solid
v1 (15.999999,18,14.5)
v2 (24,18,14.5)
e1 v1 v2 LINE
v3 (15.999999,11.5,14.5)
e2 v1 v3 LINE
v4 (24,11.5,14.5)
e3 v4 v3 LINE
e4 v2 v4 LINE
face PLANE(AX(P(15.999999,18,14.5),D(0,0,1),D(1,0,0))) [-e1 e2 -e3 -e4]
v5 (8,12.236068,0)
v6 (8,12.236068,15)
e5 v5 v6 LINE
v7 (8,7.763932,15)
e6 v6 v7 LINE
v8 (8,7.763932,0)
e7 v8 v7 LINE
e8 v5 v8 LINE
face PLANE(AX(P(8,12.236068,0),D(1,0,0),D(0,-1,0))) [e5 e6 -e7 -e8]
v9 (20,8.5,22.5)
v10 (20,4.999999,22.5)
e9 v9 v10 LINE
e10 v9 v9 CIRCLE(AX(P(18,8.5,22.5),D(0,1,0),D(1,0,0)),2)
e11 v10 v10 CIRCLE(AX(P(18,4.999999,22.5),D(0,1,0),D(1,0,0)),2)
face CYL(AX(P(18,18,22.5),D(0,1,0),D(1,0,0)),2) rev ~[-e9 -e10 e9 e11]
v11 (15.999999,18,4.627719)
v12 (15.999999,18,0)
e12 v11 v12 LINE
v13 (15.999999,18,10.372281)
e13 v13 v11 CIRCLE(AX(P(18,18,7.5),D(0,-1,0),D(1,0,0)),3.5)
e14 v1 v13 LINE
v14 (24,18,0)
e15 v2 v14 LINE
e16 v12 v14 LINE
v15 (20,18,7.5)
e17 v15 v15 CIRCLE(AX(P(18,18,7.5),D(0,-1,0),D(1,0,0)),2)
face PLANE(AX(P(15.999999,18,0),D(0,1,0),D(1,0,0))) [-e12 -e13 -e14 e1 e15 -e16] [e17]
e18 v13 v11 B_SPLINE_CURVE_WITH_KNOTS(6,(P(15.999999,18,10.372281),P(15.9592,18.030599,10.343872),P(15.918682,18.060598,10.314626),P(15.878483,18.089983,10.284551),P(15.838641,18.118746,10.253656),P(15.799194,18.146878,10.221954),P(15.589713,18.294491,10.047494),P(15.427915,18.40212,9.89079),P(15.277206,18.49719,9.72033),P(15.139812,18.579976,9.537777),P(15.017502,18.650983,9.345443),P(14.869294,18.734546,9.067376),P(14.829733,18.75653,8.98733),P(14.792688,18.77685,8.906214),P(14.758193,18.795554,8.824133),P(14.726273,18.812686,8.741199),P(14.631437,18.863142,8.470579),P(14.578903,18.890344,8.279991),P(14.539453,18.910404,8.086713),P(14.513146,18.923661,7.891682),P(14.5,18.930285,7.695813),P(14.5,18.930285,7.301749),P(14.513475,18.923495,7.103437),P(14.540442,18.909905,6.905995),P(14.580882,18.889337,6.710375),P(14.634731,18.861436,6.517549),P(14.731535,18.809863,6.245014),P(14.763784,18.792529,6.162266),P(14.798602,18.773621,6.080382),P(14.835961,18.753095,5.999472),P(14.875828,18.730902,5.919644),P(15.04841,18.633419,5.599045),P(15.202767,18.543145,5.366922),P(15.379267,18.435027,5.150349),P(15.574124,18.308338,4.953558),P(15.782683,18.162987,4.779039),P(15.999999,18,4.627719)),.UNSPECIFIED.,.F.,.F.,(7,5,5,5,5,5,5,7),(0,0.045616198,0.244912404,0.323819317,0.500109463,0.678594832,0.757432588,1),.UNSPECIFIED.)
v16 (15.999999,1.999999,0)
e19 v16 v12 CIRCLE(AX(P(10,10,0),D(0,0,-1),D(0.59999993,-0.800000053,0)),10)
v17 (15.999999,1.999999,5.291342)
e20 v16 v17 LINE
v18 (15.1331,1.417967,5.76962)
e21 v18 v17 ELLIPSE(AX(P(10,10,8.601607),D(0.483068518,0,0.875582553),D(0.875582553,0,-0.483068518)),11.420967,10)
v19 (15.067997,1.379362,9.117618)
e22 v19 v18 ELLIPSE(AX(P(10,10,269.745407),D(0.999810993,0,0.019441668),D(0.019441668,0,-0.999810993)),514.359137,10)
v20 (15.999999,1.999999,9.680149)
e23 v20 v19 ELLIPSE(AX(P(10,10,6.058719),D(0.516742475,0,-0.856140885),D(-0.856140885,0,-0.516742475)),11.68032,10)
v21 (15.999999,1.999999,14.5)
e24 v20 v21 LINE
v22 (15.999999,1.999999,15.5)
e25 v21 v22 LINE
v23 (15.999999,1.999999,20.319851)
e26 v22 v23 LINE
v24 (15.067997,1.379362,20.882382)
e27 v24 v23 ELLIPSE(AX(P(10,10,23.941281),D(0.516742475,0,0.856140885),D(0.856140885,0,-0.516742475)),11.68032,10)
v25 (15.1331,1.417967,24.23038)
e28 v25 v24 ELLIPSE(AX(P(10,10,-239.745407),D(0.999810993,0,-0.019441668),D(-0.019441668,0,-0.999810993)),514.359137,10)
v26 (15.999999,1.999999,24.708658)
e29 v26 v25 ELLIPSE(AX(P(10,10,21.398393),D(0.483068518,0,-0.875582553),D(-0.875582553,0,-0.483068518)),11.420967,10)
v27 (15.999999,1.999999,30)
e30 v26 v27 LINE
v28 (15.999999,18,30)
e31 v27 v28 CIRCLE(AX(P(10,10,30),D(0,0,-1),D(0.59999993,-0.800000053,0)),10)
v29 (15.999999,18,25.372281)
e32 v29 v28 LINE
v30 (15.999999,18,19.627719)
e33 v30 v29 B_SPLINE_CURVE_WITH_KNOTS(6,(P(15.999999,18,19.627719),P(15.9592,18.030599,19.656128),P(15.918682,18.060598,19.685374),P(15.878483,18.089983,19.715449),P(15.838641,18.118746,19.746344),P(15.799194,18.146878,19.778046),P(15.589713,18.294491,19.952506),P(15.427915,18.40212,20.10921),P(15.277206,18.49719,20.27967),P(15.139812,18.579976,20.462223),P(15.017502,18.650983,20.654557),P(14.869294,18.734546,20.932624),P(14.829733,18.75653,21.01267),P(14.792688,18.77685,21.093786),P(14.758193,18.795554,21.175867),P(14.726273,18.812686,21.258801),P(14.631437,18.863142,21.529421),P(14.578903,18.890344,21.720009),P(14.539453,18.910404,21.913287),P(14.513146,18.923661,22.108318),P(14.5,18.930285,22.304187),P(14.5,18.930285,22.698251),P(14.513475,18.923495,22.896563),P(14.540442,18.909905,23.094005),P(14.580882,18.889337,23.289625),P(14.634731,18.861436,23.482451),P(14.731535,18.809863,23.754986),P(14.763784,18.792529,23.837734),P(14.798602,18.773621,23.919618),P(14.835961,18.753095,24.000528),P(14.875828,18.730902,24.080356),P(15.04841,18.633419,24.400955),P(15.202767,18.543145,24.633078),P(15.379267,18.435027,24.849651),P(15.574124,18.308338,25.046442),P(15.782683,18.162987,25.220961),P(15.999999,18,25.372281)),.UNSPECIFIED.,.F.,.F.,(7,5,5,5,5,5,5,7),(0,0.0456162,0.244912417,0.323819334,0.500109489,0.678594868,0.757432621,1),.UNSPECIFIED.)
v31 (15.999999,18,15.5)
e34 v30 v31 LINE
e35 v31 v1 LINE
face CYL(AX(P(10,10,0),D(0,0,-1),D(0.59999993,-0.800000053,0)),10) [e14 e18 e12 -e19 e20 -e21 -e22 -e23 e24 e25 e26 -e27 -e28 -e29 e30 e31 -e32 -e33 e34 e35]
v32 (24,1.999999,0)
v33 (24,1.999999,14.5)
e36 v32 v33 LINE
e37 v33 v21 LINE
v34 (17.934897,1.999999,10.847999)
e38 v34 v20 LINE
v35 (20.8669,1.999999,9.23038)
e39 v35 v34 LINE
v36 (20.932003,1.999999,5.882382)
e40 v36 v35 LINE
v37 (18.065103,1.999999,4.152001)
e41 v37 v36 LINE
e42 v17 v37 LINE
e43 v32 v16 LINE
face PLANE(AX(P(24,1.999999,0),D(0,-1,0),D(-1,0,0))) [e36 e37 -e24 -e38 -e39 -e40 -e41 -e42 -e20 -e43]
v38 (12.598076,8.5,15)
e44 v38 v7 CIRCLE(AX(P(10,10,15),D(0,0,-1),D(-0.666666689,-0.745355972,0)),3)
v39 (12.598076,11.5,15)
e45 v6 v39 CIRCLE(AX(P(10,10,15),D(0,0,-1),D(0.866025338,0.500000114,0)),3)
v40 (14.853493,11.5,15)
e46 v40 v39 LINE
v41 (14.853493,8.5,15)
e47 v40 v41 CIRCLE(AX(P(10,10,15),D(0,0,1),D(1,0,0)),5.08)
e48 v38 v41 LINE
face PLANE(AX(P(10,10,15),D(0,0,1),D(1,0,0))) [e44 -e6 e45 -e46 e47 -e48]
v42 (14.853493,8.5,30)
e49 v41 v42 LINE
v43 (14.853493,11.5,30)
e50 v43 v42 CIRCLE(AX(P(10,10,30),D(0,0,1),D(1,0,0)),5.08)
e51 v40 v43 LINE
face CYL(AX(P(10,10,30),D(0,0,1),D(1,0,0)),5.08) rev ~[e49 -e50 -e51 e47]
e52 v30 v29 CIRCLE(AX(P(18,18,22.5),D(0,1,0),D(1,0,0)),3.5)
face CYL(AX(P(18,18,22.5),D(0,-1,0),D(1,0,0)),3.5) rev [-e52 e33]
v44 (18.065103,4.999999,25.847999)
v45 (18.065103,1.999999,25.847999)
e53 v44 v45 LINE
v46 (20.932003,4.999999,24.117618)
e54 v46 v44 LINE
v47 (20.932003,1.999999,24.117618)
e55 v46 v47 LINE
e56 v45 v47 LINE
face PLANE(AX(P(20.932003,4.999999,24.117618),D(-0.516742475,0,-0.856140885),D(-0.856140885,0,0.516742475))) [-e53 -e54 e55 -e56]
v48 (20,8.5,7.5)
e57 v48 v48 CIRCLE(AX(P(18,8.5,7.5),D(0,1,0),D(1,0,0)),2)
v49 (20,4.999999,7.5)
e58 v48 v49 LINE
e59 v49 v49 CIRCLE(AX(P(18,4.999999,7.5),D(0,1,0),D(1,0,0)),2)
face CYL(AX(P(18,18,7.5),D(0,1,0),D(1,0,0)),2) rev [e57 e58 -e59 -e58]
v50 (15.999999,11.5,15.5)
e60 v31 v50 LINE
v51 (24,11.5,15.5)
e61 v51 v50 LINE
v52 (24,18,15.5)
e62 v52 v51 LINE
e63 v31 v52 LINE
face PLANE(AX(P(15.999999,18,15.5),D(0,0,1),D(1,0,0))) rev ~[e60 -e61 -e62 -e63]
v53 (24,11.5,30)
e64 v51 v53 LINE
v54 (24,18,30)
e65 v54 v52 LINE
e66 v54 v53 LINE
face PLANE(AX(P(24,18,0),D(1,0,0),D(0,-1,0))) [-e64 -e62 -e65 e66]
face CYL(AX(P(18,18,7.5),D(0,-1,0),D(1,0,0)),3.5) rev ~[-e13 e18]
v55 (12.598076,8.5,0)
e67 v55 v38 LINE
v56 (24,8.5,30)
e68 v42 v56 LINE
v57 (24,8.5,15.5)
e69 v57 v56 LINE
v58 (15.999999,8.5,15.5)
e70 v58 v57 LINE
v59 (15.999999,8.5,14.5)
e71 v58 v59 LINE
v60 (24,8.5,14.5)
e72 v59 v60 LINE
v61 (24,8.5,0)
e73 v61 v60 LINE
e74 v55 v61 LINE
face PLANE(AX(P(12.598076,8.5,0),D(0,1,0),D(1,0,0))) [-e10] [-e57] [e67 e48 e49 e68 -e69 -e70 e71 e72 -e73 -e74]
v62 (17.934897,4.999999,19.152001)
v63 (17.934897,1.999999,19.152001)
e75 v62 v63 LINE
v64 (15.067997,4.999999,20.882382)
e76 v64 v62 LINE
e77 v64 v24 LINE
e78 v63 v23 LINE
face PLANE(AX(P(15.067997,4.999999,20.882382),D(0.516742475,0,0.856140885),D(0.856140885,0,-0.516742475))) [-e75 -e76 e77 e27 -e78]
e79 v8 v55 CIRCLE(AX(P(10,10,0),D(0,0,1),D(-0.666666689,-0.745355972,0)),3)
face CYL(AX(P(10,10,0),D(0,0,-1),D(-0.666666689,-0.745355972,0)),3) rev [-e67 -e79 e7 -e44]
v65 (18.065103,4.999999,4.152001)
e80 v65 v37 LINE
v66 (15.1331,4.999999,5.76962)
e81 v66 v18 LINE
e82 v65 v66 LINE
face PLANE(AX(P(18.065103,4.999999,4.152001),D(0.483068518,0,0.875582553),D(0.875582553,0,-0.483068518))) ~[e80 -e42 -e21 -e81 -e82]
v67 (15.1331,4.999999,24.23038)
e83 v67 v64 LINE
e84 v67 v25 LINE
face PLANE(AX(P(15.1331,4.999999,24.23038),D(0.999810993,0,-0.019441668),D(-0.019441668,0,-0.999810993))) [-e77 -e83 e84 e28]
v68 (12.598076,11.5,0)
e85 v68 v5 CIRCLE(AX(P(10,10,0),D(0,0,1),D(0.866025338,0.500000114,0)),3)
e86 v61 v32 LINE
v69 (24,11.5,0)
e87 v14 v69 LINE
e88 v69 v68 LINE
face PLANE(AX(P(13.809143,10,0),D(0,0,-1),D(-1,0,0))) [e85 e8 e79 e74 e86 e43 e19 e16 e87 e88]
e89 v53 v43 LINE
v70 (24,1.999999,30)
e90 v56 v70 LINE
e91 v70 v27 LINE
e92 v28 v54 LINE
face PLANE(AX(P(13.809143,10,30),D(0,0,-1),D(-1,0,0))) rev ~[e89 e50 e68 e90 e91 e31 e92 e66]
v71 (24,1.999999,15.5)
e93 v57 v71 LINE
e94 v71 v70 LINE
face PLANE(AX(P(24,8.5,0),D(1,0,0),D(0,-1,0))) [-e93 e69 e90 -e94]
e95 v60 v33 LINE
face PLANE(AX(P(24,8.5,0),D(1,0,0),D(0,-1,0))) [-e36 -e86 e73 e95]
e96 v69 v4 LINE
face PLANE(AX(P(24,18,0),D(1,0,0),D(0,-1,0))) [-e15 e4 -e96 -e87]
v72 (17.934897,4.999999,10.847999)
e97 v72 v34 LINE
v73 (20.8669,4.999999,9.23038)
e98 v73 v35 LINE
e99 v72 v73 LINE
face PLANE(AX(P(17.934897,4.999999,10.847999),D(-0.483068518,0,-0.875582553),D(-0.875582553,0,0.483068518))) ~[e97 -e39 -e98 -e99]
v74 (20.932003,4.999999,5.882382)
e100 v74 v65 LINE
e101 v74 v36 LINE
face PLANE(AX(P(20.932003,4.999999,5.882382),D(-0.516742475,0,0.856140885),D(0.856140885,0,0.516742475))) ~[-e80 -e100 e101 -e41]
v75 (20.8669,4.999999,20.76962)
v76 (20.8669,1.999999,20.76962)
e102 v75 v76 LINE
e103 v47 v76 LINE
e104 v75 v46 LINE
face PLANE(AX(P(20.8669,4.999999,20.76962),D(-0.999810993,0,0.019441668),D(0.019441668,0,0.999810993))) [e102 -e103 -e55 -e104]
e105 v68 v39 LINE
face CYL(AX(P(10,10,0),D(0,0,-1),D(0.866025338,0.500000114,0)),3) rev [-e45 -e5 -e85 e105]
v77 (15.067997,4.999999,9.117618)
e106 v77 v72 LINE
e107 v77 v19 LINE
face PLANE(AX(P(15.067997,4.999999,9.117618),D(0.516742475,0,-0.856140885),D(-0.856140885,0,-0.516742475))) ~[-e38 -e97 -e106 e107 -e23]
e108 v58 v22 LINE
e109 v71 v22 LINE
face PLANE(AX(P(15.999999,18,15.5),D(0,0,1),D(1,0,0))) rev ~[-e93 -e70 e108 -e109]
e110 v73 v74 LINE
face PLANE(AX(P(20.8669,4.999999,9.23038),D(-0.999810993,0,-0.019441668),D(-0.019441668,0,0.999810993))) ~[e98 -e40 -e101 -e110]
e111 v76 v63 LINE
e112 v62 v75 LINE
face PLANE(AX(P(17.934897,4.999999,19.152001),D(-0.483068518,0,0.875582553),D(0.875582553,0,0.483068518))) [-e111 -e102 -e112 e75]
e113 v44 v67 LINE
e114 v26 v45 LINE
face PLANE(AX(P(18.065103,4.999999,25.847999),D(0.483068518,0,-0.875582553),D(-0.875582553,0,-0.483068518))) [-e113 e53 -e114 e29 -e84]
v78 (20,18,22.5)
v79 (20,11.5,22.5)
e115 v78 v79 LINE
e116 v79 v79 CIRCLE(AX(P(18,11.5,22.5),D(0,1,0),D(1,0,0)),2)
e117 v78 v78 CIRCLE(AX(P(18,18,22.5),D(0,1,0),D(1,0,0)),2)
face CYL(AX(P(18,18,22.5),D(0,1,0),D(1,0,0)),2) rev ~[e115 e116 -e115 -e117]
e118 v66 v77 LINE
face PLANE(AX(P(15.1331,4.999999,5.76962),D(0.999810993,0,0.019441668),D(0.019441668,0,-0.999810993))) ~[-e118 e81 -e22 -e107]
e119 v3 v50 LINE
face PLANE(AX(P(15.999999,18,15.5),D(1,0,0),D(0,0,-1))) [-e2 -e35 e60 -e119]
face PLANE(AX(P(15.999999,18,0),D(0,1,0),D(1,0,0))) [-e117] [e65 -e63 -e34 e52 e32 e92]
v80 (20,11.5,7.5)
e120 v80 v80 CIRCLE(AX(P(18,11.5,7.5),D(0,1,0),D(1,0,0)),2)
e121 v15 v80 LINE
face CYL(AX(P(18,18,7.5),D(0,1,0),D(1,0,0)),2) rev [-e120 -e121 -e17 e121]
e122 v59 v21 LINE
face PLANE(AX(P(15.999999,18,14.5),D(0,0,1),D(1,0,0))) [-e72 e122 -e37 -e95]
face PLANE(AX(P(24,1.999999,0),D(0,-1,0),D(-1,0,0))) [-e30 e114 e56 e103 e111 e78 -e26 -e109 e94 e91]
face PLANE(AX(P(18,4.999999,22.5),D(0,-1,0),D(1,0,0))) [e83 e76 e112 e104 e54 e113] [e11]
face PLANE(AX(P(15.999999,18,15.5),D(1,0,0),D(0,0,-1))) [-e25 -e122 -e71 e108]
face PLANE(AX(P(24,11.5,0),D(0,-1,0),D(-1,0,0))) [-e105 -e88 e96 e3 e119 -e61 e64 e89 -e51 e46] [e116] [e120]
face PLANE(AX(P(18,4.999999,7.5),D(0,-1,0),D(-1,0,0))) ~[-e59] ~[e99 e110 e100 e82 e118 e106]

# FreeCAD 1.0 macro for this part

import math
import FreeCAD as App
import Part
import Sketcher
Q = App.Units.Quantity

doc = App.newDocument("Part")
params = doc.addObject("Spreadsheet::Sheet", "Params")
for row, (alias, value) in enumerate([
    ("sketch1_radius", "3 mm"),
    ("sketch1_radius2", "10 mm"),
    ("sketch1_width", "8.000001 mm"),
    ("sketch1_height", "6.5 mm"),
    ("pad1_length", "30 mm"),
    ("sketch2_diameter", "4 mm"),
    ("sketch3_diameter", "7 mm"),
    ("pocket2_length", "10 mm"),
    ("sketch4_width", "8.000001 mm"),
    ("sketch4_height", "1 mm"),
    ("pocket4_length", "6 mm"),
    ("sketch6_diameter", "10.16 mm"),
    ("pocket5_length", "15 mm"),
], start=1):
    params.set(f"A{row}", alias)
    params.set(f"B{row}", "=" + value)
    params.setAlias(f"B{row}", alias)

body = doc.addObject("PartDesign::Body", "Body")

# Sketch on XY plane
sketch1 = doc.addObject("Sketcher::SketchObject", "Sketch")
body.addObject(sketch1)
sketch1.AttachmentSupport = (doc.XY_Plane, [""])
sketch1.MapMode = "FlatFace"
sketch1.addGeometry([
    Part.LineSegment(App.Vector(8, 7.8, 0), App.Vector(8, 12.2, 0)),  # 0
    Part.ArcOfCircle(Part.Circle(App.Vector(10, 10, 0), App.Vector(0, 0, 1), 3), math.radians(30), math.radians(132)),  # 1
    Part.LineSegment(App.Vector(12.6, 11.5, 0), App.Vector(24, 11.5, 0)),  # 2
    Part.LineSegment(App.Vector(24, 11.5, 0), App.Vector(24, 18, 0)),  # 3
    Part.LineSegment(App.Vector(24, 18, 0), App.Vector(16, 18, 0)),  # 4
    Part.ArcOfCircle(Part.Circle(App.Vector(10, 10, 0), App.Vector(0, 0, 1), 10), math.radians(53), math.radians(307)),  # 5
    Part.LineSegment(App.Vector(16, 2, 0), App.Vector(24, 2, 0)),  # 6
    Part.LineSegment(App.Vector(24, 2, 0), App.Vector(24, 8.5, 0)),  # 7
    Part.LineSegment(App.Vector(24, 8.5, 0), App.Vector(12.6, 8.5, 0)),  # 8
    Part.ArcOfCircle(Part.Circle(App.Vector(10, 10, 0), App.Vector(0, 0, 1), 3), math.radians(-132), math.radians(-30)),  # 9
], False)
sketch1.addConstraint([
    Sketcher.Constraint("Coincident", 0, 2, 1, 2),
    Sketcher.Constraint("Coincident", 1, 1, 2, 1),
    Sketcher.Constraint("Coincident", 2, 2, 3, 1),
    Sketcher.Constraint("Coincident", 3, 2, 4, 1),
    Sketcher.Constraint("Coincident", 4, 2, 5, 1),
    Sketcher.Constraint("Coincident", 5, 2, 6, 1),
    Sketcher.Constraint("Coincident", 6, 2, 7, 1),
    Sketcher.Constraint("Coincident", 7, 2, 8, 1),
    Sketcher.Constraint("Coincident", 8, 2, 9, 2),
    Sketcher.Constraint("Coincident", 9, 1, 0, 1),
    Sketcher.Constraint("Vertical", 0),
    Sketcher.Constraint("Horizontal", 2),
    Sketcher.Constraint("Vertical", 3),
    Sketcher.Constraint("Horizontal", 4),
    Sketcher.Constraint("Horizontal", 6),
    Sketcher.Constraint("Vertical", 7),
    Sketcher.Constraint("Horizontal", 8),
    Sketcher.Constraint("Coincident", 5, 3, 1, 3),
    Sketcher.Constraint("Coincident", 9, 3, 1, 3),
    Sketcher.Constraint("Equal", 1, 9),
    Sketcher.Constraint("Vertical", 4, 2, 5, 2),
    Sketcher.Constraint("Vertical", 3, 2, 6, 2),
    Sketcher.Constraint("Vertical", 1, 1, 8, 2),
    Sketcher.Constraint("Radius", 1, Q("3 mm")),
    Sketcher.Constraint("Radius", 5, Q("10 mm")),
    Sketcher.Constraint("DistanceX", 4, 2, 4, 1, Q("8.000001 mm")),
    Sketcher.Constraint("DistanceY", 3, 1, 3, 2, Q("6.5 mm")),
    Sketcher.Constraint("DistanceX", -1, 1, 1, 3, Q("10 mm")),
    Sketcher.Constraint("DistanceY", -1, 1, 1, 3, Q("10 mm")),
    Sketcher.Constraint("DistanceX", -1, 1, 0, 2, Q("8 mm")),
    Sketcher.Constraint("DistanceX", -1, 1, 2, 2, Q("24 mm")),
])
sketch1.setExpression("Constraints[23]", "Params.sketch1_radius")
sketch1.setExpression("Constraints[24]", "Params.sketch1_radius2")
sketch1.setExpression("Constraints[25]", "Params.sketch1_width")
sketch1.setExpression("Constraints[26]", "Params.sketch1_height")
pad1 = doc.addObject("PartDesign::Pad", "Pad")
body.addObject(pad1)
pad1.Profile = sketch1
pad1.setExpression("Length", "Params.pad1_length")

# Sketch on XZ plane
sketch2 = doc.addObject("Sketcher::SketchObject", "Sketch001")
body.addObject(sketch2)
sketch2.AttachmentSupport = (doc.XZ_Plane, [""])
sketch2.MapMode = "FlatFace"
sketch2.AttachmentOffset = App.Placement(App.Vector(0, 0, -18), App.Rotation())
sketch2.addGeometry(Part.Circle(App.Vector(18, 22.5, 0), App.Vector(0, 0, 1), 2), False)
sketch2.addConstraint([
    Sketcher.Constraint("Diameter", 0, Q("4 mm")),
    Sketcher.Constraint("DistanceX", -1, 1, 0, 3, Q("18 mm")),
    Sketcher.Constraint("DistanceY", -1, 1, 0, 3, Q("22.5 mm")),
])
sketch2.setExpression("Constraints[0]", "Params.sketch2_diameter")
pocket1 = doc.addObject("PartDesign::Pocket", "Pocket")
body.addObject(pocket1)
pocket1.Profile = sketch2
pocket1.Type = "ThroughAll"
pocket1.Reversed = True

# Sketch on XZ plane
sketch3 = doc.addObject("Sketcher::SketchObject", "Sketch002")
body.addObject(sketch3)
sketch3.AttachmentSupport = (doc.XZ_Plane, [""])
sketch3.MapMode = "FlatFace"
sketch3.AttachmentOffset = App.Placement(App.Vector(0, 0, -18), App.Rotation())
sketch3.addGeometry(Part.Circle(App.Vector(18, 22.5, 0), App.Vector(0, 0, 1), 3.5), False)
sketch3.addConstraint([
    Sketcher.Constraint("Diameter", 0, Q("7 mm")),
    Sketcher.Constraint("DistanceX", -1, 1, 0, 3, Q("18 mm")),
    Sketcher.Constraint("DistanceY", -1, 1, 0, 3, Q("22.5 mm")),
])
sketch3.setExpression("Constraints[0]", "Params.sketch3_diameter")
pocket2 = doc.addObject("PartDesign::Pocket", "Pocket001")
body.addObject(pocket2)
pocket2.Profile = sketch3
pocket2.setExpression("Length", "Params.pocket2_length")

# Sketch on XZ plane
sketch4 = doc.addObject("Sketcher::SketchObject", "Sketch003")
body.addObject(sketch4)
sketch4.AttachmentSupport = (doc.XZ_Plane, [""])
sketch4.MapMode = "FlatFace"
sketch4.AttachmentOffset = App.Placement(App.Vector(0, 0, -18), App.Rotation())
sketch4.addGeometry([
    Part.LineSegment(App.Vector(16, 14.5, 0), App.Vector(16, 15.5, 0)),
    Part.LineSegment(App.Vector(16, 15.5, 0), App.Vector(24, 15.5, 0)),
    Part.LineSegment(App.Vector(24, 15.5, 0), App.Vector(24, 14.5, 0)),
    Part.LineSegment(App.Vector(24, 14.5, 0), App.Vector(16, 14.5, 0)),
], False)
sketch4.addConstraint([
    Sketcher.Constraint("Coincident", 0, 2, 1, 1),
    Sketcher.Constraint("Coincident", 1, 2, 2, 1),
    Sketcher.Constraint("Coincident", 2, 2, 3, 1),
    Sketcher.Constraint("Coincident", 3, 2, 0, 1),
    Sketcher.Constraint("Vertical", 0),
    Sketcher.Constraint("Horizontal", 1),
    Sketcher.Constraint("Vertical", 2),
    Sketcher.Constraint("Horizontal", 3),
    Sketcher.Constraint("DistanceX", 1, 1, 1, 2, Q("8.000001 mm")),
    Sketcher.Constraint("DistanceY", 0, 1, 0, 2, Q("1 mm")),
    Sketcher.Constraint("DistanceX", -1, 1, 0, 2, Q("15.999999 mm")),
    Sketcher.Constraint("DistanceY", -1, 1, 0, 2, Q("15.5 mm")),
])
sketch4.setExpression("Constraints[8]", "Params.sketch4_width")
sketch4.setExpression("Constraints[9]", "Params.sketch4_height")
pocket3 = doc.addObject("PartDesign::Pocket", "Pocket002")
body.addObject(pocket3)
pocket3.Profile = sketch4
pocket3.Type = "ThroughAll"
pocket3.Midplane = True

# Sketch on XZ plane
sketch5 = doc.addObject("Sketcher::SketchObject", "Sketch004")
body.addObject(sketch5)
sketch5.AttachmentSupport = (doc.XZ_Plane, [""])
sketch5.MapMode = "FlatFace"
sketch5.AttachmentOffset = App.Placement(App.Vector(0, 0, -4.999999), App.Rotation())
sketch5.addGeometry([
    Part.LineSegment(App.Vector(15.1, 20.9, 0), App.Vector(17.9, 19.2, 0)),  # 0
    Part.LineSegment(App.Vector(17.9, 19.2, 0), App.Vector(20.9, 20.8, 0)),  # 1
    Part.LineSegment(App.Vector(20.9, 20.8, 0), App.Vector(20.9, 24.1, 0)),  # 2
    Part.LineSegment(App.Vector(20.9, 24.1, 0), App.Vector(18.1, 25.8, 0)),  # 3
    Part.LineSegment(App.Vector(18.1, 25.8, 0), App.Vector(15.1, 24.2, 0)),  # 4
    Part.LineSegment(App.Vector(15.1, 24.2, 0), App.Vector(15.1, 20.9, 0)),  # 5
], False)
sketch5.addConstraint([
    Sketcher.Constraint("Coincident", 0, 2, 1, 1),
    Sketcher.Constraint("Coincident", 1, 2, 2, 1),
    Sketcher.Constraint("Coincident", 2, 2, 3, 1),
    Sketcher.Constraint("Coincident", 3, 2, 4, 1),
    Sketcher.Constraint("Coincident", 4, 2, 5, 1),
    Sketcher.Constraint("Coincident", 5, 2, 0, 1),
    Sketcher.Constraint("Parallel", 0, 3),
    Sketcher.Constraint("Parallel", 1, 4),
    Sketcher.Constraint("Parallel", 2, 5),
    Sketcher.Constraint("Equal", 0, 1),
    Sketcher.Constraint("Equal", 1, 2),
    Sketcher.Constraint("Equal", 2, 3),
    Sketcher.Constraint("DistanceY", -1, 1, 0, 2, Q("19.152001 mm")),
    Sketcher.Constraint("DistanceY", -1, 1, 3, 2, Q("25.847999 mm")),
    Sketcher.Constraint("DistanceY", 1, 2, 2, 2, Q("3.347999 mm")),
    Sketcher.Constraint("DistanceX", -1, 1, 1, 2, Q("20.8669 mm")),
    Sketcher.Constraint("DistanceX", -1, 1, 4, 2, Q("15.1331 mm")),
    Sketcher.Constraint("DistanceX", 3, 2, 2, 2, Q("2.8669 mm")),
])
pocket4 = doc.addObject("PartDesign::Pocket", "Pocket003")
body.addObject(pocket4)
pocket4.Profile = sketch5
pocket4.setExpression("Length", "Params.pocket4_length")
pocket4.Reversed = True
doc.recompute()

datumplane = doc.addObject("PartDesign::Plane", "DatumPlane")
body.addObject(datumplane)
datumplane.AttachmentSupport = (doc.XY_Plane, [""])
datumplane.MapMode = "FlatFace"
datumplane.AttachmentOffset = App.Placement(App.Vector(0, 0, 15), App.Rotation())
mirrored = doc.addObject("PartDesign::Mirrored", "Mirrored")
body.addObject(mirrored)
mirrored.Originals = [pocket4]
mirrored.MirrorPlane = (datumplane, [""])
body.Tip = mirrored
doc.recompute()

datumplane2 = doc.addObject("PartDesign::Plane", "DatumPlane001")
body.addObject(datumplane2)
datumplane2.AttachmentSupport = (doc.XY_Plane, [""])
datumplane2.MapMode = "FlatFace"
datumplane2.AttachmentOffset = App.Placement(App.Vector(0, 0, 15), App.Rotation())
mirrored2 = doc.addObject("PartDesign::Mirrored", "Mirrored001")
body.addObject(mirrored2)
mirrored2.Originals = [pocket1, pocket2]
mirrored2.MirrorPlane = (datumplane2, [""])
body.Tip = mirrored2

# Sketch on XY plane
sketch6 = doc.addObject("Sketcher::SketchObject", "Sketch005")
body.addObject(sketch6)
sketch6.AttachmentSupport = (doc.XY_Plane, [""])
sketch6.MapMode = "FlatFace"
sketch6.AttachmentOffset = App.Placement(App.Vector(0, 0, 30), App.Rotation())
sketch6.addGeometry(Part.Circle(App.Vector(10, 10, 0), App.Vector(0, 0, 1), 5), False)
sketch6.addConstraint([
    Sketcher.Constraint("Diameter", 0, Q("10.16 mm")),
    Sketcher.Constraint("DistanceX", -1, 1, 0, 3, Q("10 mm")),
    Sketcher.Constraint("DistanceY", -1, 1, 0, 3, Q("10 mm")),
])
sketch6.setExpression("Constraints[0]", "Params.sketch6_diameter")
pocket5 = doc.addObject("PartDesign::Pocket", "Pocket004")
body.addObject(pocket5)
pocket5.Profile = sketch6
pocket5.setExpression("Length", "Params.pocket5_length")

doc.recompute()
